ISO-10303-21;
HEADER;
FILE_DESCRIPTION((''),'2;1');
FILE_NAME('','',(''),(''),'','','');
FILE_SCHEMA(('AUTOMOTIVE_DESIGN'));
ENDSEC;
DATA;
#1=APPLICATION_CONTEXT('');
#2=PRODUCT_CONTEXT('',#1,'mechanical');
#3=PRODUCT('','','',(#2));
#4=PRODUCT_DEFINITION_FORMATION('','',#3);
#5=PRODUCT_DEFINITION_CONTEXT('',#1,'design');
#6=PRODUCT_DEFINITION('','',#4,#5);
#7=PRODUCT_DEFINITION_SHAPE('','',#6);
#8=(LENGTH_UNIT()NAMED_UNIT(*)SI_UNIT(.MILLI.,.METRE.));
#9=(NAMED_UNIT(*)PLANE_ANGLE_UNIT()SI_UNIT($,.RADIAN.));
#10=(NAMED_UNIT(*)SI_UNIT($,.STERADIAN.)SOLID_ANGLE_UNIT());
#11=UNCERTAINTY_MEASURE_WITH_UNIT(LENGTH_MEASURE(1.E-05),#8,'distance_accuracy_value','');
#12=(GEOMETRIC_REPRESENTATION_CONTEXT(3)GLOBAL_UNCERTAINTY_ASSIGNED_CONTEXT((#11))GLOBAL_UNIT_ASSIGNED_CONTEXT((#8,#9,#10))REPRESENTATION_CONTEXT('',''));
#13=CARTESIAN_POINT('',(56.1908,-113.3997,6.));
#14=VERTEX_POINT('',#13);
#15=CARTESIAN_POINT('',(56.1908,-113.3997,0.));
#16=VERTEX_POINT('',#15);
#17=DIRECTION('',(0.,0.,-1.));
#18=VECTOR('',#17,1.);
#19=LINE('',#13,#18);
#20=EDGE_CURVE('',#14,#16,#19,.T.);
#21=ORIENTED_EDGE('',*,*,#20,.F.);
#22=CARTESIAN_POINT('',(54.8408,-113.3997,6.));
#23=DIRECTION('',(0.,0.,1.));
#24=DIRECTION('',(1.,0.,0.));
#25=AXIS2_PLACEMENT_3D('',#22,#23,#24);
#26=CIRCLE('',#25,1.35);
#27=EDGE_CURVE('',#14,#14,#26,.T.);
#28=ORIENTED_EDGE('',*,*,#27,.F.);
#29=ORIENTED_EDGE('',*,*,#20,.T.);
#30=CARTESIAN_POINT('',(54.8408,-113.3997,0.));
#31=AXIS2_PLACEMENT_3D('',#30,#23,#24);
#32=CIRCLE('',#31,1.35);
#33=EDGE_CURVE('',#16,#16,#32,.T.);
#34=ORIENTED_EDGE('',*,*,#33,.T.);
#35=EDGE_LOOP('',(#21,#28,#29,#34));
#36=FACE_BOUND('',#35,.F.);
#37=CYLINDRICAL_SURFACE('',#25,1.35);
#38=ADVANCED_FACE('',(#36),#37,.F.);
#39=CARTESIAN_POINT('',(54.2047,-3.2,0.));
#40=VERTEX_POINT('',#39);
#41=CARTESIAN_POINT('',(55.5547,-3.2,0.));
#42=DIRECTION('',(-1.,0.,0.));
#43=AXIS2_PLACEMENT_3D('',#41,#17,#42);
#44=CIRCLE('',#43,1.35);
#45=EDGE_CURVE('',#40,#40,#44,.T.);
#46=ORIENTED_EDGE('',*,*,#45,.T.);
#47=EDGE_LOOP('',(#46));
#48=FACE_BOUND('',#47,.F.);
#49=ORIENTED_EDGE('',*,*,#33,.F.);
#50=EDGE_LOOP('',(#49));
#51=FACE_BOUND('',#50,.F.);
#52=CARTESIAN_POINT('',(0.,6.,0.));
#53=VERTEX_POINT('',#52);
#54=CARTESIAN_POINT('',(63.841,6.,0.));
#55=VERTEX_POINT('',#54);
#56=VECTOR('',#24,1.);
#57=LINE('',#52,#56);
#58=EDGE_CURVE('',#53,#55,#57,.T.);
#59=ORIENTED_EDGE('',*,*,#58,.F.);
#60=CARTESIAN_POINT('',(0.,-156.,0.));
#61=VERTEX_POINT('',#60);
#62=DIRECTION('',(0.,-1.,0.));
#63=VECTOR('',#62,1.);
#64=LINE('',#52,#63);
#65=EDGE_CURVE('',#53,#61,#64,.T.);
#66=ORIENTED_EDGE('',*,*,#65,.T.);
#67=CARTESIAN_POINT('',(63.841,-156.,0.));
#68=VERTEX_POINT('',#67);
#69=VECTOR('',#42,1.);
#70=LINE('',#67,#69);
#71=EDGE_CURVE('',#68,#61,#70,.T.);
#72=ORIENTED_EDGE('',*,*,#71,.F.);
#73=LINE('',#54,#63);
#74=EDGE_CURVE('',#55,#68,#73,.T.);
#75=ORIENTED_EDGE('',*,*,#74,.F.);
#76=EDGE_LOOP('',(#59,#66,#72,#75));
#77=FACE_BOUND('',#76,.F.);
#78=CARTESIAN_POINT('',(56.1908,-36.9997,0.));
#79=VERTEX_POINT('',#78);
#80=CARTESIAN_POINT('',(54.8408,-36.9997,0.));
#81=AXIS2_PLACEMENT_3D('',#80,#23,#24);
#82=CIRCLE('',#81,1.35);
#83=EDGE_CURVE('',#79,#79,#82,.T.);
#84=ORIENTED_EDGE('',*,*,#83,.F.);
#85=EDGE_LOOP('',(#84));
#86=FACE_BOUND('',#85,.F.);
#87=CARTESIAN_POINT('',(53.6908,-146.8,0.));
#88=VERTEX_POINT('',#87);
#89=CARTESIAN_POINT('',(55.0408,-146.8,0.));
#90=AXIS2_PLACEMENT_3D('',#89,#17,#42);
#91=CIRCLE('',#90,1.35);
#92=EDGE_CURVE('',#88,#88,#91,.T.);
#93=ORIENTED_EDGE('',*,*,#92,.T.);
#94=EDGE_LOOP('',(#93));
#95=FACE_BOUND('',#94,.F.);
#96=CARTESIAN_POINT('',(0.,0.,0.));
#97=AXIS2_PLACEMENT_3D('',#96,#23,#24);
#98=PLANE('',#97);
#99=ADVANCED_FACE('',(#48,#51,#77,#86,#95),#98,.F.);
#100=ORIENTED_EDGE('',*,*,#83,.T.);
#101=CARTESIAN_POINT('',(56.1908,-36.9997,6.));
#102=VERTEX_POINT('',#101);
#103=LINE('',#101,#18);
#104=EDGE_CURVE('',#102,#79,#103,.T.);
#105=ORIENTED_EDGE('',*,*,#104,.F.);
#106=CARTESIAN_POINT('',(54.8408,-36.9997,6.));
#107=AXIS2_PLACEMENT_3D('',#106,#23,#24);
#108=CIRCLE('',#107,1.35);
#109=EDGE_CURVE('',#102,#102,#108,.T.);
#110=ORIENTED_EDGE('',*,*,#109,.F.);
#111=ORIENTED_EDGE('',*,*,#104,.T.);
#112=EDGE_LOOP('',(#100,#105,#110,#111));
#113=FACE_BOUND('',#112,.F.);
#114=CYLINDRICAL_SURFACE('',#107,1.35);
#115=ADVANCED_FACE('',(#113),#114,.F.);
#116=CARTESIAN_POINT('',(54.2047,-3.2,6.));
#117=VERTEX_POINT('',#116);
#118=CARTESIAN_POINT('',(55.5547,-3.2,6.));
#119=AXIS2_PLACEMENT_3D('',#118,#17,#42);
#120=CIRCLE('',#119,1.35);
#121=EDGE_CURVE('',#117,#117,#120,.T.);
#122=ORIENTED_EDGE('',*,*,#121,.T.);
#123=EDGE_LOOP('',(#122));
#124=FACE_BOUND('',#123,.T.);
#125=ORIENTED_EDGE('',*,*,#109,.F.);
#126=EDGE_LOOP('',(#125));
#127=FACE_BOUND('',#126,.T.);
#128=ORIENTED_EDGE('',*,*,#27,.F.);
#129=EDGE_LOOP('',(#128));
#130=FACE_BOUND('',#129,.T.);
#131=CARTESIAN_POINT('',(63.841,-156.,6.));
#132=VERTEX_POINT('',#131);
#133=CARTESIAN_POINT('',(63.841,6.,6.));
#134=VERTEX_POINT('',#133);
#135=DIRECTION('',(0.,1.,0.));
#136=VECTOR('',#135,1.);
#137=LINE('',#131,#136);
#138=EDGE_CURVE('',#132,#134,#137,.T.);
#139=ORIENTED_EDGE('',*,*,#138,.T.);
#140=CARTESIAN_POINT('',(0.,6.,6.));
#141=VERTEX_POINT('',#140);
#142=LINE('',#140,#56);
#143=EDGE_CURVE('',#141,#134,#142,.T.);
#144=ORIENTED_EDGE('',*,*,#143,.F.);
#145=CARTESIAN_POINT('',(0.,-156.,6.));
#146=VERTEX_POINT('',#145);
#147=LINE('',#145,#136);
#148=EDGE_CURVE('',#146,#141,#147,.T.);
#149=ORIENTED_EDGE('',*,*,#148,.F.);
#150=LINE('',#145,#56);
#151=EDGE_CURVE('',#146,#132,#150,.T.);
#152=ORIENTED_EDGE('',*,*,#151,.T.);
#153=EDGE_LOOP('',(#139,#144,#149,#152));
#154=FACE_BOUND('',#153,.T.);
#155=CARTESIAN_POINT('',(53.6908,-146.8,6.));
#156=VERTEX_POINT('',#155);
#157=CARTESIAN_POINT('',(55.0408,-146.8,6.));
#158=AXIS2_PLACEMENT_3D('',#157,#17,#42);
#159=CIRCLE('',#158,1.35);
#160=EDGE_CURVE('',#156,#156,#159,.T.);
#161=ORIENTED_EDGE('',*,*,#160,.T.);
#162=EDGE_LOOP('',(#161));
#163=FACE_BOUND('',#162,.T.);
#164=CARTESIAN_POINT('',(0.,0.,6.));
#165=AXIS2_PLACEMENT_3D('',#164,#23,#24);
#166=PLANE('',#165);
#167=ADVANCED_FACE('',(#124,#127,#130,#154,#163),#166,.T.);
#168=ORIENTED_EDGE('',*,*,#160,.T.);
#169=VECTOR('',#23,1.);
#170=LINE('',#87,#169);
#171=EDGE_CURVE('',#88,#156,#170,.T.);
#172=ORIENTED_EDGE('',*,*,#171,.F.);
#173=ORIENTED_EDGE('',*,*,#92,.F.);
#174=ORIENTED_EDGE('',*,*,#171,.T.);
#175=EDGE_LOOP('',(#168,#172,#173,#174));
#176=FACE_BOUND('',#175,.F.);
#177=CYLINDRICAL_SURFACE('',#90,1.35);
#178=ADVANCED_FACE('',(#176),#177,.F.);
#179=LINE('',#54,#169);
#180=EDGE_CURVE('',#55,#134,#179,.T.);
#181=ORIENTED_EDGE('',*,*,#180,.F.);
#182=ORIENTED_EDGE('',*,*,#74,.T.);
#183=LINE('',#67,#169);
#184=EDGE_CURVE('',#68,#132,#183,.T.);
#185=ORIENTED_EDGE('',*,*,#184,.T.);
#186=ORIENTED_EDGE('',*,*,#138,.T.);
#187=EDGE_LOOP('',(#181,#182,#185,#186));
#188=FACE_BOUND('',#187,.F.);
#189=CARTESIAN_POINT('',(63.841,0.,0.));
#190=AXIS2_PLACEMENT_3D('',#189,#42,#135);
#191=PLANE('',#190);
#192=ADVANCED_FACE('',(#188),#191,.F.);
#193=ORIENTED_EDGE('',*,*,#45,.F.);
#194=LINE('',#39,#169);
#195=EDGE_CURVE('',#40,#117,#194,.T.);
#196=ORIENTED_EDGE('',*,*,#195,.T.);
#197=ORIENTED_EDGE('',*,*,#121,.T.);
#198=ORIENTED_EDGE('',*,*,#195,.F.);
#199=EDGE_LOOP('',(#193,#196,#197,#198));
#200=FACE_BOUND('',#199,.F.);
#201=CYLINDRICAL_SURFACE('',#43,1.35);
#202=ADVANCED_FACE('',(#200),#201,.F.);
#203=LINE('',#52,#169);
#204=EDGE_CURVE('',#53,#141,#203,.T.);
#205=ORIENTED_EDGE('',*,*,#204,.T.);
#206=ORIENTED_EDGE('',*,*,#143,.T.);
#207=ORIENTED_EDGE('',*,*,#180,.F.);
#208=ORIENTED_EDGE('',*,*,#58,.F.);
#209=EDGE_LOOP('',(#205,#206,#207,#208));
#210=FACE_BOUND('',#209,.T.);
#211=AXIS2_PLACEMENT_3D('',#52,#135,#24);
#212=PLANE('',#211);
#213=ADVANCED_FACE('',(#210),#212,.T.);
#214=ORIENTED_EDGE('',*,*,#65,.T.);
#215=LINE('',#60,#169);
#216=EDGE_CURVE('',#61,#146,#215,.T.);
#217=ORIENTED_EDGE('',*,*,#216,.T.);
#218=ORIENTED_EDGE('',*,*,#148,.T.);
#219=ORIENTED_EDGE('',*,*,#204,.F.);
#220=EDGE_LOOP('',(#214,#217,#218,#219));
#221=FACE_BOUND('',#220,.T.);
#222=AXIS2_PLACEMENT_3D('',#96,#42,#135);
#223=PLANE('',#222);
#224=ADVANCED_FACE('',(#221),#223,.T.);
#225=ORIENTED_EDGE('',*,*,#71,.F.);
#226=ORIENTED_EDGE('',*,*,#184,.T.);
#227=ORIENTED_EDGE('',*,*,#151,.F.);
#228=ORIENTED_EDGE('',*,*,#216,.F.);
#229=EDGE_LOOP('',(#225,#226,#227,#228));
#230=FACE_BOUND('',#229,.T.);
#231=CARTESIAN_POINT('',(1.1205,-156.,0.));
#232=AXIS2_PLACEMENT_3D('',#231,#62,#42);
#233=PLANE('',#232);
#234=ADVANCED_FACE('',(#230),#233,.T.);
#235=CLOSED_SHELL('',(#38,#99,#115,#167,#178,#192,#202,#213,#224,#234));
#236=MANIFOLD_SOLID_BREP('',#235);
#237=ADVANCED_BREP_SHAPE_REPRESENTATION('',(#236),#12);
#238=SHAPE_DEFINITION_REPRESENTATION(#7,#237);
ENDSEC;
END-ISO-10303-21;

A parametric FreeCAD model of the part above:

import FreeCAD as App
import Part
import Sketcher
from FreeCAD import Vector
Q = App.Units.Quantity

doc = App.newDocument("Part")
body = doc.addObject("PartDesign::Body", "Body")

# Sketch on XY plane
sketch1 = body.newObject("Sketcher::SketchObject", "Sketch")
sketch1.AttachmentSupport = (doc.getObject("XY_Plane"), [""])
sketch1.MapMode = "FlatFace"
sketch1.addGeometry([
    Part.LineSegment(Vector(0, 6, 0), Vector(0, -156, 0)),
    Part.LineSegment(Vector(0, -156, 0), Vector(64, -156, 0)),
    Part.LineSegment(Vector(64, -156, 0), Vector(64, 6, 0)),
    Part.LineSegment(Vector(64, 6, 0), Vector(0, 6, 0)),
], False)
sketch1.addConstraint([
    Sketcher.Constraint("Coincident", 0, 2, 1, 1),
    Sketcher.Constraint("Coincident", 1, 2, 2, 1),
    Sketcher.Constraint("Coincident", 2, 2, 3, 1),
    Sketcher.Constraint("Coincident", 3, 2, 0, 1),
    Sketcher.Constraint("Vertical", 0),
    Sketcher.Constraint("Horizontal", 1),
    Sketcher.Constraint("Vertical", 2),
    Sketcher.Constraint("Horizontal", 3),
    Sketcher.Constraint("PointOnObject", 0, 2, -2),
    Sketcher.Constraint("DistanceY", 0, 2, 0, 1, Q("162 mm")),
    Sketcher.Constraint("DistanceY", 0, 2, -1, 1, Q("156 mm")),
    Sketcher.Constraint("DistanceX", 1, 1, 1, 2, Q("63.841 mm")),
])
pad1 = body.newObject("PartDesign::Pad", "Pad")
pad1.Profile = sketch1
pad1.Length = 6

# Sketch on XY plane
sketch2 = body.newObject("Sketcher::SketchObject", "Sketch001")
sketch2.AttachmentSupport = (doc.getObject("XY_Plane"), [""])
sketch2.MapMode = "FlatFace"
sketch2.AttachmentOffset = App.Placement(Vector(0, 0, 6), App.Rotation())
sketch2.addGeometry([
    Part.Circle(Vector(54.8, -37, 0), Vector(0, 0, 1), 1.4),
    Part.Circle(Vector(54.8, -113.4, 0), Vector(0, 0, 1), 1.4),
], False)
sketch2.addConstraint([
    Sketcher.Constraint("Equal", 0, 1),
    Sketcher.Constraint("Vertical", 0, 3, 1, 3),
    Sketcher.Constraint("Diameter", 0, Q("2.7 mm")),
    Sketcher.Constraint("DistanceY", 1, 3, 0, 3, Q("76.4 mm")),
    Sketcher.Constraint("DistanceX", -1, 1, 0, 3, Q("54.8408 mm")),
    Sketcher.Constraint("DistanceY", 0, 3, -1, 1, Q("36.9997 mm")),
])
pocket1 = body.newObject("PartDesign::Pocket", "Pocket")
pocket1.Profile = sketch2
pocket1.Length = 10

# Sketch on XY plane
sketch3 = body.newObject("Sketcher::SketchObject", "Sketch002")
sketch3.AttachmentSupport = (doc.getObject("XY_Plane"), [""])
sketch3.MapMode = "FlatFace"
sketch3.addGeometry([
    Part.Circle(Vector(55, -146.8, 0), Vector(0, 0, 1), 1.4),
    Part.Circle(Vector(55.6, -3.2, 0), Vector(0, 0, 1), 1.4),
], False)
sketch3.addConstraint([
    Sketcher.Constraint("Equal", 0, 1),
    Sketcher.Constraint("Diameter", 0, Q("2.7 mm")),
    Sketcher.Constraint("DistanceY", 0, 3, -1, 1, Q("146.8 mm")),
    Sketcher.Constraint("DistanceY", 1, 3, -1, 1, Q("3.2 mm")),
    Sketcher.Constraint("DistanceX", 0, 3, 1, 3, Q("0.514 mm")),
    Sketcher.Constraint("DistanceX", -1, 1, 0, 3, Q("55.0408 mm")),
])
pocket2 = body.newObject("PartDesign::Pocket", "Pocket001")
pocket2.Profile = sketch3
pocket2.Length = 6
pocket2.Reversed = True

doc.recompute()
